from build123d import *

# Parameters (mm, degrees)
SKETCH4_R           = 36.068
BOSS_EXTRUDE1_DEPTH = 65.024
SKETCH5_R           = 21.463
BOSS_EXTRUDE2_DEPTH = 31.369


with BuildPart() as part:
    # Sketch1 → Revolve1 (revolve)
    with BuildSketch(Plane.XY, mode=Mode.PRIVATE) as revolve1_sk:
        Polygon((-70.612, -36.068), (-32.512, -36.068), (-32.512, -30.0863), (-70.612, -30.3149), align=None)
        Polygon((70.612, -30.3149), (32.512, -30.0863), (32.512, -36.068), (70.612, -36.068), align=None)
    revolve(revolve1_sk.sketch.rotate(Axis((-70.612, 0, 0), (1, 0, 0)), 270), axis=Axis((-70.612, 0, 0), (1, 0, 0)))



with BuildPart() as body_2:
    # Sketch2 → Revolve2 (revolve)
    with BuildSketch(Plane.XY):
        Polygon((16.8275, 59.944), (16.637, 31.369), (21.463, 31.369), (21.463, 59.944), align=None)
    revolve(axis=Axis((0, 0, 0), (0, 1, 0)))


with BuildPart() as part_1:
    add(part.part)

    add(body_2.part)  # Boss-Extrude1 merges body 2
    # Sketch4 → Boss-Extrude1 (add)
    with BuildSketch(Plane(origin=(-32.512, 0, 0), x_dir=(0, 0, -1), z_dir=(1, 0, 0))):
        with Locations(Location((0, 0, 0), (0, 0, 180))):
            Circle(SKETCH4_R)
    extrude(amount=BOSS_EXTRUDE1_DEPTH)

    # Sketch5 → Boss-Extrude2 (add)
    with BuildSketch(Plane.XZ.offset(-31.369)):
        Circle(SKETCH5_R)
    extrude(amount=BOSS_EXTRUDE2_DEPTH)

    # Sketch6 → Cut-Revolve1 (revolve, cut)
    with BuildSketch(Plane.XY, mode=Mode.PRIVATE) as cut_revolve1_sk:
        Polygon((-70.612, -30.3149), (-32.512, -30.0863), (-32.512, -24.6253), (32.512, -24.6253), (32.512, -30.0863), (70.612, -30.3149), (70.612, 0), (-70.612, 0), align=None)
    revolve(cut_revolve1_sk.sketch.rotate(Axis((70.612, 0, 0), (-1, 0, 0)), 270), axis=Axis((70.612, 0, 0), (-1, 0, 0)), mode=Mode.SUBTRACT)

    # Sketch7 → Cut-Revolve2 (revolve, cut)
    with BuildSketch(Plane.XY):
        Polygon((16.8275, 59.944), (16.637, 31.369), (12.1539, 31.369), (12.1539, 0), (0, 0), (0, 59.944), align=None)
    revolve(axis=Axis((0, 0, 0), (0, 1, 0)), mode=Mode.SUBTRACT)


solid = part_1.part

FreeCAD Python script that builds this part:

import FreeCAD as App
import Part
import Sketcher
from FreeCAD import Vector
Q = App.Units.Quantity


def add_polygon(sketch, points):
    """Adds a closed chain of lines whose ends are joined by coincident constraints."""
    first, n = sketch.GeometryCount, len(points)
    for a, b in zip(points, points[1:] + points[:1]):
        sketch.addGeometry(Part.LineSegment(App.Vector(*a, 0), App.Vector(*b, 0)), False)
    for i in range(n):
        sketch.addConstraint(Sketcher.Constraint("Coincident", first + i, 2, first + (i + 1) % n, 1))

doc = App.newDocument("Part")
body = doc.addObject("PartDesign::Body", "Body")
body.AllowCompound = True

# Sketch on XY plane
sketch1 = body.newObject("Sketcher::SketchObject", "Sketch")
sketch1.AttachmentSupport = (doc.getObject("XY_Plane"), [""])
sketch1.MapMode = "FlatFace"
add_polygon(sketch1, [(-71, -36), (-33, -36), (-33, -30), (-71, -30)])  # lines 0-3
add_polygon(sketch1, [(71, -30), (33, -30), (33, -36), (71, -36)])  # lines 4-7
sketch1.addConstraint([
    Sketcher.Constraint("Horizontal", 0),
    Sketcher.Constraint("Vertical", 1),
    Sketcher.Constraint("Vertical", 3),
    Sketcher.Constraint("Vertical", 5),
    Sketcher.Constraint("Horizontal", 6),
    Sketcher.Constraint("Vertical", 7),
    Sketcher.Constraint("Symmetric", 1, 2, 4, 2, -2),
    Sketcher.Constraint("Symmetric", 3, 2, 6, 2, -2),
    Sketcher.Constraint("Horizontal", 2, 2, 7, 2),
    Sketcher.Constraint("DistanceX", 0, 1, 0, 2, Q("1.5 in")),
    Sketcher.Constraint("DistanceX", 0, 2, -1, 1, Q("1.28 in")),
    Sketcher.Constraint("DistanceY", 0, 2, -1, 1, Q("1.42 in")),
    Sketcher.Constraint("DistanceY", 1, 1, 1, 2, Q("0.2355 in")),
    Sketcher.Constraint("DistanceY", 3, 2, 3, 1, Q("0.2265 in")),
])
revolution = body.newObject("PartDesign::Revolution", "Revolution")
revolution.Profile = sketch1
revolution.ReferenceAxis = (sketch1, ["H_Axis"])
revolution.Angle = 360
body2 = doc.addObject("PartDesign::Body", "Body001")

# Sketch on XY plane
sketch2 = body2.newObject("Sketcher::SketchObject", "Sketch001")
sketch2.AttachmentSupport = (doc.getObject("XY_Plane001"), [""])
sketch2.MapMode = "FlatFace"
add_polygon(sketch2, [(16.8, 59.9), (16.6, 31.4), (21.5, 31.4), (21.5, 59.9)])  # lines 0-3
sketch2.addConstraint([
    Sketcher.Constraint("Horizontal", 1),
    Sketcher.Constraint("Vertical", 2),
    Sketcher.Constraint("Horizontal", 3),
    Sketcher.Constraint("DistanceX", 1, 1, 1, 2, Q("0.19 in")),
    Sketcher.Constraint("DistanceY", 2, 1, 2, 2, Q("1.125 in")),
    Sketcher.Constraint("DistanceY", -1, 1, 2, 2, Q("2.36 in")),
    Sketcher.Constraint("DistanceX", 3, 2, 3, 1, Q("0.1825 in")),
    Sketcher.Constraint("DistanceX", -1, 1, 0, 2, Q("0.655 in")),
])
revolution2 = body2.newObject("PartDesign::Revolution", "Revolution001")
revolution2.Profile = sketch2
revolution2.ReferenceAxis = (sketch2, ["V_Axis"])
revolution2.Angle = 360
body.AllowCompound = True
doc.recompute()

boolean = body.newObject("PartDesign::Boolean", "Boolean")
boolean.Type = "Fuse"
boolean.addObjects([body2])

# Sketch on YZ plane
sketch3 = body.newObject("Sketcher::SketchObject", "Sketch002")
sketch3.AttachmentSupport = (doc.getObject("YZ_Plane"), [""])
sketch3.MapMode = "FlatFace"
sketch3.AttachmentOffset = App.Placement(Vector(0, 0, -1.28 * 25.4), App.Rotation())
sketch3.addGeometry(Part.Circle(Vector(0, 0, 0), Vector(0, 0, 1), 36), False)
sketch3.addConstraint([
    Sketcher.Constraint("Coincident", 0, 3, -1, 1),
    Sketcher.Constraint("Diameter", 0, Q("2.84 in")),
])
pad1 = body.newObject("PartDesign::Pad", "Pad")
pad1.Profile = sketch3
pad1.Length = Q("2.56 in")

# Sketch on XZ plane
sketch4 = body.newObject("Sketcher::SketchObject", "Sketch003")
sketch4.AttachmentSupport = (doc.getObject("XZ_Plane"), [""])
sketch4.MapMode = "FlatFace"
sketch4.AttachmentOffset = App.Placement(Vector(0, 0, -1.235 * 25.4), App.Rotation())
sketch4.addGeometry(Part.Circle(Vector(0, 0, 0), Vector(0, 0, 1), 21), False)
sketch4.addConstraint([
    Sketcher.Constraint("Coincident", 0, 3, -1, 1),
    Sketcher.Constraint("Diameter", 0, Q("1.69 in")),
])
pad2 = body.newObject("PartDesign::Pad", "Pad001")
pad2.Profile = sketch4
pad2.Length = Q("1.235 in")

# Sketch on XY plane
sketch5 = body.newObject("Sketcher::SketchObject", "Sketch004")
sketch5.AttachmentSupport = (doc.getObject("XY_Plane"), [""])
sketch5.MapMode = "FlatFace"
add_polygon(sketch5, [(-71, -30), (-33, -30), (-33, -25), (33, -25), (33, -30), (71, -30), (71, 0), (-71, 0)])  # lines 0-7
sketch5.addConstraint([
    Sketcher.Constraint("Vertical", 1),
    Sketcher.Constraint("Horizontal", 2),
    Sketcher.Constraint("Vertical", 3),
    Sketcher.Constraint("Vertical", 5),
    Sketcher.Constraint("Horizontal", 6),
    Sketcher.Constraint("Vertical", 7),
    Sketcher.Constraint("Symmetric", 5, 2, 6, 2, -1, 1),
    Sketcher.Constraint("Symmetric", 0, 2, 3, 2, -2),
    Sketcher.Constraint("Horizontal", 4, 2, 7, 2),
    Sketcher.Constraint("DistanceX", 2, 1, 2, 2, Q("2.56 in")),
    Sketcher.Constraint("DistanceX", 6, 2, 6, 1, Q("5.56 in")),
    Sketcher.Constraint("DistanceY", 1, 1, 1, 2, Q("0.215 in")),
    Sketcher.Constraint("DistanceY", 5, 1, 5, 2, Q("1.1935 in")),
    Sketcher.Constraint("DistanceY", 4, 2, 3, 2, Q("0.009 in")),
])
groove = body.newObject("PartDesign::Groove", "Groove")
groove.Profile = sketch5
groove.ReferenceAxis = (sketch5, ["H_Axis"])
groove.Angle = 360

# Sketch on XY plane
sketch6 = body.newObject("Sketcher::SketchObject", "Sketch005")
sketch6.AttachmentSupport = (doc.getObject("XY_Plane"), [""])
sketch6.MapMode = "FlatFace"
add_polygon(sketch6, [(16.6, 31.4), (16.8, 59.9), (0, 59.9), (0, 0), (12.2, 0), (12.2, 31.4)])  # lines 0-5
sketch6.addConstraint([
    Sketcher.Constraint("Horizontal", 1),
    Sketcher.Constraint("Vertical", 2),
    Sketcher.Constraint("Horizontal", 3),
    Sketcher.Constraint("Vertical", 4),
    Sketcher.Constraint("Horizontal", 5),
    Sketcher.Constraint("Coincident", 2, 2, -1, 1),
    Sketcher.Constraint("DistanceY", 2, 2, 2, 1, Q("2.36 in")),
    Sketcher.Constraint("DistanceY", 4, 1, 4, 2, Q("1.235 in")),
    Sketcher.Constraint("DistanceX", 1, 2, 1, 1, Q("0.6625 in")),
    Sketcher.Constraint("DistanceX", 3, 1, 3, 2, Q("0.4785 in")),
    Sketcher.Constraint("DistanceX", 5, 1, 5, 2, Q("0.1765 in")),
])
groove2 = body.newObject("PartDesign::Groove", "Groove001")
groove2.Profile = sketch6
groove2.ReferenceAxis = (sketch6, ["V_Axis"])
groove2.Angle = 360

doc.recompute()
